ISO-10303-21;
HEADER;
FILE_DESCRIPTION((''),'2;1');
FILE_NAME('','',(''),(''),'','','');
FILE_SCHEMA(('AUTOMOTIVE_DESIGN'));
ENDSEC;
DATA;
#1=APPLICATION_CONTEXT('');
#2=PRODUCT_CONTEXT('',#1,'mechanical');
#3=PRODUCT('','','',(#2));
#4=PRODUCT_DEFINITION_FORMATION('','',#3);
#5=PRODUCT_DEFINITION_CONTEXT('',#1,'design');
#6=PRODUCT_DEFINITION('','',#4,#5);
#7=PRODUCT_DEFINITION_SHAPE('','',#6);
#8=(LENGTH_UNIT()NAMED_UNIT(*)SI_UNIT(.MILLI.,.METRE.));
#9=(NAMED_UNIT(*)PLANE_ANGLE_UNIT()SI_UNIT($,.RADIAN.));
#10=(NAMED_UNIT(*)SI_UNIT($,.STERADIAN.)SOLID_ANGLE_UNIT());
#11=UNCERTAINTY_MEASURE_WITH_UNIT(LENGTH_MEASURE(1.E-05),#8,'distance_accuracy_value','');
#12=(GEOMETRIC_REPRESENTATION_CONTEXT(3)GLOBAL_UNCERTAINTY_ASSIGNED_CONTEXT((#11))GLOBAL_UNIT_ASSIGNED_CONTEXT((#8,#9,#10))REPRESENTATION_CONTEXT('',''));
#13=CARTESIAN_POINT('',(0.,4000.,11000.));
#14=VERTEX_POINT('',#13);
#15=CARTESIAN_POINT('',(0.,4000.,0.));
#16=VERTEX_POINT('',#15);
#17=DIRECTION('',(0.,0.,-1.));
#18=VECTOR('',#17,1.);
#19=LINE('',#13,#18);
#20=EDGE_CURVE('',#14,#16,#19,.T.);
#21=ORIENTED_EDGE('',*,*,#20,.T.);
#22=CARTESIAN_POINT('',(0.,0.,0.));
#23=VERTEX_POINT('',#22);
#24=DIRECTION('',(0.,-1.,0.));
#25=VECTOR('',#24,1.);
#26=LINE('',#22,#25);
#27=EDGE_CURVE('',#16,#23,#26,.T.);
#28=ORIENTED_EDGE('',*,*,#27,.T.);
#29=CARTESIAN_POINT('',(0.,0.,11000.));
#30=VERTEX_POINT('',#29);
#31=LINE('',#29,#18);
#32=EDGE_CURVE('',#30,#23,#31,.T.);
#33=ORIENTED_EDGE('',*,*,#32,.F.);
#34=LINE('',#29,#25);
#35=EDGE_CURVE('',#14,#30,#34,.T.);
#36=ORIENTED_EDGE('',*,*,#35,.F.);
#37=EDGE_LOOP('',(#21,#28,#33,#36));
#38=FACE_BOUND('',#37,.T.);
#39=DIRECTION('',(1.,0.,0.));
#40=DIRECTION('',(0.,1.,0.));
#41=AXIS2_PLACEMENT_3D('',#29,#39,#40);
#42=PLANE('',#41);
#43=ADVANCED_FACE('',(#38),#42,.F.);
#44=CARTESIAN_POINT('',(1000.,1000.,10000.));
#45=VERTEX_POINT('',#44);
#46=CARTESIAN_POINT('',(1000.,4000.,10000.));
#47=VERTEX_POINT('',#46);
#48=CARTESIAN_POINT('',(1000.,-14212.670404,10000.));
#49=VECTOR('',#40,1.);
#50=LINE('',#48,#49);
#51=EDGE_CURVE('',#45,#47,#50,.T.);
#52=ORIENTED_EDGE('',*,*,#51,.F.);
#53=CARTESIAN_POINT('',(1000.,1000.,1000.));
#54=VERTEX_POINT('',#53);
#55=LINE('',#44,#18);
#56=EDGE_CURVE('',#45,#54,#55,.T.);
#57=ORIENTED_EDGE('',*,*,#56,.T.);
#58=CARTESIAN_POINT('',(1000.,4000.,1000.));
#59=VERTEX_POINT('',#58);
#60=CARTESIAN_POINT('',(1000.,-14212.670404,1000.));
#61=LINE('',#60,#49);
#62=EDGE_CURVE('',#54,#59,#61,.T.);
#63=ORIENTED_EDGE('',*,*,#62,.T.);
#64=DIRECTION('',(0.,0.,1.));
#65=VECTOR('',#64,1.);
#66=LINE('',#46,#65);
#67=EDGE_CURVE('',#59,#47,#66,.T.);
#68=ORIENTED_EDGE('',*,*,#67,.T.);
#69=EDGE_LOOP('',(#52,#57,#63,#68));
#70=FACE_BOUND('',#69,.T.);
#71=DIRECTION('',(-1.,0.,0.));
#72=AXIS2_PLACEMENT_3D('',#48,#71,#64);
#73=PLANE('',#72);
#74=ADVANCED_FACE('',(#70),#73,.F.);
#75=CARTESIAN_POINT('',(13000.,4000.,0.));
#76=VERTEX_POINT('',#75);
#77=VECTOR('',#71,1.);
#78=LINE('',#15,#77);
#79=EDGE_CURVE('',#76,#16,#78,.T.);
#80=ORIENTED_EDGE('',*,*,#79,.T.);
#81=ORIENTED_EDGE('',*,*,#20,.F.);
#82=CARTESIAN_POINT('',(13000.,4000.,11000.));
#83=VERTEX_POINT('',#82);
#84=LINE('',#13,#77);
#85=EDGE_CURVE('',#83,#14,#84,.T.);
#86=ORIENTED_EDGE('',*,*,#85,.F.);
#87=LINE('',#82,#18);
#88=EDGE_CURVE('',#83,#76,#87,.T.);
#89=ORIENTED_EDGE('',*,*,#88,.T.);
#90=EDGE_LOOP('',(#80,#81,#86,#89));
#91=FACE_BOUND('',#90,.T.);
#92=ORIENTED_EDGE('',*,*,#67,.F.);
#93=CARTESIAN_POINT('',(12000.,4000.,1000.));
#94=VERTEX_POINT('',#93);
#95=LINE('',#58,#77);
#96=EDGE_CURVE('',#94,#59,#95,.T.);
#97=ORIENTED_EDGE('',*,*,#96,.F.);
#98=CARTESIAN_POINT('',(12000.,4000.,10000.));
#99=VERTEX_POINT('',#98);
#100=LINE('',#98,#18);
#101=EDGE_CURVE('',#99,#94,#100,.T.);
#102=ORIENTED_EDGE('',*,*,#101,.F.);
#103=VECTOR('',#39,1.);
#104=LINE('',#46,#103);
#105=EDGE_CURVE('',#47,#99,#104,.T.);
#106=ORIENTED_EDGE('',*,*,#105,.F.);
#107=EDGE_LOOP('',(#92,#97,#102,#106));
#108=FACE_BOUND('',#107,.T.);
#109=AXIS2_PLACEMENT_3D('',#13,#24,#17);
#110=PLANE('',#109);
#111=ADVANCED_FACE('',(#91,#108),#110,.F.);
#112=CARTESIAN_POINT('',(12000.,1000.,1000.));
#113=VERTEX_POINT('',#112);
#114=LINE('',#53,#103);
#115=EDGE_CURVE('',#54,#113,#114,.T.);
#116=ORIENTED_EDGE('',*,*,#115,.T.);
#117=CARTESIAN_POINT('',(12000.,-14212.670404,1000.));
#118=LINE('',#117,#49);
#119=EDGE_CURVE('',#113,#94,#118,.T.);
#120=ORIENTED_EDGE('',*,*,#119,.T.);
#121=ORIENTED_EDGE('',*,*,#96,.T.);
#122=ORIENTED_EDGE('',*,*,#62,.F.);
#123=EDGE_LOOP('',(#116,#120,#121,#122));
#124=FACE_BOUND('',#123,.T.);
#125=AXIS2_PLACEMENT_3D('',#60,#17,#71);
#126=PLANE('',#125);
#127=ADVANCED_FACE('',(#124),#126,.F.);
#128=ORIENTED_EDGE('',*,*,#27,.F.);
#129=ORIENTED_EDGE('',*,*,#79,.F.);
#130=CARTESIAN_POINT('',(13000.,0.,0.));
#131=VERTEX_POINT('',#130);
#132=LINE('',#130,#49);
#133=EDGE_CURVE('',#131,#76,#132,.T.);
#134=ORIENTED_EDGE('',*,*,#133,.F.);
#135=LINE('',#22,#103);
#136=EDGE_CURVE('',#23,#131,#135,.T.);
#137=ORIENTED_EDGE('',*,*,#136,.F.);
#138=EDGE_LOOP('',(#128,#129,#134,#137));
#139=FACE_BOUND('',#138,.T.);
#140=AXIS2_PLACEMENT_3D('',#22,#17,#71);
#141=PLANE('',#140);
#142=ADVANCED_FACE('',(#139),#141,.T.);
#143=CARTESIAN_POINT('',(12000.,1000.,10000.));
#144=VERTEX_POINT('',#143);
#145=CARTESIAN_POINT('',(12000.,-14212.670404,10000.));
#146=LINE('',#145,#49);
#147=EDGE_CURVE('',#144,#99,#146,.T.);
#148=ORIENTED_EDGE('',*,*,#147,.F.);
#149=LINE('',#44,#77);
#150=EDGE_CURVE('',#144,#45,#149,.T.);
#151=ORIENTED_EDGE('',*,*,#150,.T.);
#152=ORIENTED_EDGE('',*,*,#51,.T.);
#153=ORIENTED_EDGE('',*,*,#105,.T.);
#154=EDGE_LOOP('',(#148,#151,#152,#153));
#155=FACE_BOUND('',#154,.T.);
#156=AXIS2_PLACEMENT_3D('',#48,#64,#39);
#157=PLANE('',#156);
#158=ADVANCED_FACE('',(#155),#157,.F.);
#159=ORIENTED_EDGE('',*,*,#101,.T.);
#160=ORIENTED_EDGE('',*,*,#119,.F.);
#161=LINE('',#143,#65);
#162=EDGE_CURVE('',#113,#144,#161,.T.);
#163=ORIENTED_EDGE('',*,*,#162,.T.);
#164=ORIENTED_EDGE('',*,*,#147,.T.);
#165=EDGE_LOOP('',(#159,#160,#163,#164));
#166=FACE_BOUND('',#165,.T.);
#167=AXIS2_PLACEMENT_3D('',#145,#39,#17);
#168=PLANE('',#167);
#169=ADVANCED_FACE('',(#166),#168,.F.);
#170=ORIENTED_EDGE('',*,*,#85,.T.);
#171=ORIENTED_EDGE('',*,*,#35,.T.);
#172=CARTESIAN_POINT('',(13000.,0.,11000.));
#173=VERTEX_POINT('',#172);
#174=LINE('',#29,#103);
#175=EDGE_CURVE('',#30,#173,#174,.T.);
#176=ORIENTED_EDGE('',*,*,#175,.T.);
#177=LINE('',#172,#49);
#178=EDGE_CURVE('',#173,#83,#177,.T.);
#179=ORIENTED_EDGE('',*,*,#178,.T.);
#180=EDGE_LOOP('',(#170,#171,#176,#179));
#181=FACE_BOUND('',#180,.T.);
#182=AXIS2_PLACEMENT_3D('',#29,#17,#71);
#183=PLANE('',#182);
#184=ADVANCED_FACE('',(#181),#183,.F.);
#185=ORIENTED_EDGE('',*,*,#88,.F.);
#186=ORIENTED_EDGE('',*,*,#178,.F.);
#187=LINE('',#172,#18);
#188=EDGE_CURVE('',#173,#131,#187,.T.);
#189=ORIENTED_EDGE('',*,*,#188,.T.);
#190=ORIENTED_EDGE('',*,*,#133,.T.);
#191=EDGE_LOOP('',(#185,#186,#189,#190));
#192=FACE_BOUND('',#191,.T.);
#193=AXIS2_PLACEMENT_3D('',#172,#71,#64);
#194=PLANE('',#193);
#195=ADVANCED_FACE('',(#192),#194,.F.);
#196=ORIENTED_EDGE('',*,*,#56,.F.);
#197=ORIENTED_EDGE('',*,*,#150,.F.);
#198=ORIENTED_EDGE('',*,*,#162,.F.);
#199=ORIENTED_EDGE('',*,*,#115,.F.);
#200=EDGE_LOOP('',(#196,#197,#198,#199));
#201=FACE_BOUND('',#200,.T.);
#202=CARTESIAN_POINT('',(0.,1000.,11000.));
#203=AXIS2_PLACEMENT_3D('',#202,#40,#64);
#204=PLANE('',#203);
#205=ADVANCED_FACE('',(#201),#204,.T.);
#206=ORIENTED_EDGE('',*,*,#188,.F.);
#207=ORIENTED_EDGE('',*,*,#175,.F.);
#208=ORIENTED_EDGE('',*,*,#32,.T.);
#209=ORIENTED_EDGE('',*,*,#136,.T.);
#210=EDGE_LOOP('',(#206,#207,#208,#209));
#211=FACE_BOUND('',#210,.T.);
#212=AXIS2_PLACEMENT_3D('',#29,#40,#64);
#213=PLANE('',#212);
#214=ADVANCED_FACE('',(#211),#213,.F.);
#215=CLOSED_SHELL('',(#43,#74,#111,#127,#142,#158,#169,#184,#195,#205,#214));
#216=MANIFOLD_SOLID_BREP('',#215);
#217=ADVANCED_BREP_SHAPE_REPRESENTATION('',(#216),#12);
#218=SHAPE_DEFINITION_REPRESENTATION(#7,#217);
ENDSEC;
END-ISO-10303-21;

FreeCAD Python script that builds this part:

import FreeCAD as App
import Part
import Sketcher


def add_polygon(sketch, points):
    """Adds a closed chain of lines whose ends are joined by coincident constraints."""
    first, n = sketch.GeometryCount, len(points)
    for a, b in zip(points, points[1:] + points[:1]):
        sketch.addGeometry(Part.LineSegment(App.Vector(*a, 0), App.Vector(*b, 0)), False)
    for i in range(n):
        sketch.addConstraint(Sketcher.Constraint("Coincident", first + i, 2, first + (i + 1) % n, 1))

doc = App.newDocument("Part")
body = doc.addObject("PartDesign::Body", "Body")

sketch1 = body.newObject("Sketcher::SketchObject", "Sketch")
sketch1.AttachmentSupport = (doc.getObject("XY_Plane"), [""])
sketch1.MapMode = "FlatFace"
add_polygon(sketch1, [(0, 4000), (0, 0), (13000, 0), (13000, 4000)])
sketch1.addConstraint([
    Sketcher.Constraint("Vertical", 0),
    Sketcher.Constraint("Horizontal", 1),
    Sketcher.Constraint("Vertical", 2),
    Sketcher.Constraint("Horizontal", 3),
    Sketcher.Constraint("Coincident", 0, 2, -1, 1),
    Sketcher.Constraint("DistanceX", 1, 1, 1, 2, 13000.0),
    Sketcher.Constraint("DistanceY", 0, 2, 0, 1, 4000.0),
])
pad1 = body.newObject("PartDesign::Pad", "Pad")
pad1.Profile = sketch1
pad1.Length = 11000

sketch2 = body.newObject("Sketcher::SketchObject", "Sketch001")
sketch2.AttachmentSupport = (doc.getObject("XZ_Plane"), [""])
sketch2.MapMode = "FlatFace"
sketch2.AttachmentOffset = App.Placement(App.Vector(0, 0, -4000), App.Rotation())
add_polygon(sketch2, [(1000, 1000), (1000, 10000), (12000, 10000), (12000, 1000)])
sketch2.addConstraint([
    Sketcher.Constraint("Vertical", 0),
    Sketcher.Constraint("Horizontal", 1),
    Sketcher.Constraint("Vertical", 2),
    Sketcher.Constraint("Horizontal", 3),
    Sketcher.Constraint("DistanceX", 1, 1, 1, 2, 11000.0),
    Sketcher.Constraint("DistanceY", 0, 1, 0, 2, 9000.0),
    Sketcher.Constraint("DistanceX", -1, 1, 0, 2, 1000.0),
    Sketcher.Constraint("DistanceY", -1, 1, 0, 2, 10000.0),
])
pocket1 = body.newObject("PartDesign::Pocket", "Pocket")
pocket1.Profile = sketch2
pocket1.Length = 3000
pocket1.Reversed = True

doc.recompute()
